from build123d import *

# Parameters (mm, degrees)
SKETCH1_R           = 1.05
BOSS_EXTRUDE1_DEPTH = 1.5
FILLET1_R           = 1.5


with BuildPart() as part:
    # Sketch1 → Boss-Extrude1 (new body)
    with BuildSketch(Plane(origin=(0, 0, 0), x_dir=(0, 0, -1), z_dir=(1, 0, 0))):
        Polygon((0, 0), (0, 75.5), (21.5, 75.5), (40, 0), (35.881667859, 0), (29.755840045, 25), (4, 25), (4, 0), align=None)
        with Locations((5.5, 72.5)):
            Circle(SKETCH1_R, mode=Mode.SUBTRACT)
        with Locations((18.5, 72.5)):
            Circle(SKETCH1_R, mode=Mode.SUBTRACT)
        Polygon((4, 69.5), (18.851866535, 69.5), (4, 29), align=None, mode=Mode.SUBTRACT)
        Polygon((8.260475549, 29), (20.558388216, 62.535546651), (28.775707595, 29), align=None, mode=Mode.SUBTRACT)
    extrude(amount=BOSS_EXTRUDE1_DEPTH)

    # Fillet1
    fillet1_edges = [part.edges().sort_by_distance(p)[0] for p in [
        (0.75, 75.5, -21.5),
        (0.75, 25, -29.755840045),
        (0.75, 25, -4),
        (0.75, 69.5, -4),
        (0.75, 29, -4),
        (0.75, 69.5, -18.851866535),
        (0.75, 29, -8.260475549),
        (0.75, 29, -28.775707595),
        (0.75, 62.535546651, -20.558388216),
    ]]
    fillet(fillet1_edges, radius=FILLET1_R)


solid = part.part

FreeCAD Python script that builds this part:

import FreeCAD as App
import Part
import Sketcher
Q = App.Units.Quantity


def edges_at(feature, points):
    """Names of the edges that pass closest to the given points."""
    edges = feature.Shape.Edges
    near = lambda p: min(range(len(edges)), key=lambda i: edges[i].distToShape(Part.Vertex(*p))[0])
    return sorted({f"Edge{near(p) + 1}" for p in points})

doc = App.newDocument("Part")
body = doc.addObject("PartDesign::Body", "Body")

sketch1 = doc.addObject("Sketcher::SketchObject", "Sketch")
body.addObject(sketch1)
sketch1.AttachmentSupport = (doc.YZ_Plane, [""])
sketch1.MapMode = "FlatFace"
sketch1.addGeometry([
    Part.LineSegment(App.Vector(75.5, 0, 0), App.Vector(0, 0, 0)),
    Part.LineSegment(App.Vector(0, 0, 0), App.Vector(0, -4, 0)),
    Part.LineSegment(App.Vector(0, -4, 0), App.Vector(25, -4, 0)),
    Part.LineSegment(App.Vector(25, -4, 0), App.Vector(25, -29.75584, 0)),
    Part.LineSegment(App.Vector(25, -29.75584, 0), App.Vector(0, -35.881668, 0)),
    Part.LineSegment(App.Vector(0, -35.881668, 0), App.Vector(0, -40, 0)),
    Part.LineSegment(App.Vector(0, -40, 0), App.Vector(75.5, -21.5, 0)),
    Part.LineSegment(App.Vector(75.5, -21.5, 0), App.Vector(75.5, 0, 0)),
    Part.LineSegment(App.Vector(29, -8.260476, 0), App.Vector(62.535547, -20.558388, 0)),
    Part.LineSegment(App.Vector(62.535547, -20.558388, 0), App.Vector(29, -28.775708, 0)),
    Part.LineSegment(App.Vector(29, -28.775708, 0), App.Vector(29, -8.260476, 0)),
    Part.LineSegment(App.Vector(69.5, -4, 0), App.Vector(69.5, -18.851867, 0)),
    Part.LineSegment(App.Vector(69.5, -18.851867, 0), App.Vector(29, -4, 0)),
    Part.LineSegment(App.Vector(29, -4, 0), App.Vector(69.5, -4, 0)),
    Part.Circle(App.Vector(72.5, -18.5, 0), App.Vector(0, 0, 1), 1.05),
    Part.Circle(App.Vector(72.5, -5.5, 0), App.Vector(0, 0, 1), 1.05),
], False)
sketch1.addConstraint([
    Sketcher.Constraint("Coincident", 0, 2, 1, 1),
    Sketcher.Constraint("Coincident", 1, 2, 2, 1),
    Sketcher.Constraint("Coincident", 2, 2, 3, 1),
    Sketcher.Constraint("Coincident", 3, 2, 4, 1),
    Sketcher.Constraint("Coincident", 4, 2, 5, 1),
    Sketcher.Constraint("Coincident", 5, 2, 6, 1),
    Sketcher.Constraint("Coincident", 6, 2, 7, 1),
    Sketcher.Constraint("Coincident", 7, 2, 0, 1),
    Sketcher.Constraint("Coincident", 8, 2, 9, 1),
    Sketcher.Constraint("Coincident", 9, 2, 10, 1),
    Sketcher.Constraint("Coincident", 10, 2, 8, 1),
    Sketcher.Constraint("Coincident", 11, 2, 12, 1),
    Sketcher.Constraint("Coincident", 12, 2, 13, 1),
    Sketcher.Constraint("Coincident", 13, 2, 11, 1),
    Sketcher.Constraint("Horizontal", 0),
    Sketcher.Constraint("Vertical", 1),
    Sketcher.Constraint("Horizontal", 2),
    Sketcher.Constraint("Vertical", 3),
    Sketcher.Constraint("Vertical", 5),
    Sketcher.Constraint("Vertical", 7),
    Sketcher.Constraint("Vertical", 10),
    Sketcher.Constraint("Vertical", 11),
    Sketcher.Constraint("Horizontal", 13),
    Sketcher.Constraint("Coincident", 0, 2, -1, 1),
    Sketcher.Constraint("Equal", 14, 15),
    Sketcher.Constraint("PointOnObject", 4, 2, -2),
    Sketcher.Constraint("Parallel", 4, 6),
    Sketcher.Constraint("Parallel", 6, 9),
    Sketcher.Constraint("Parallel", 8, 12),
    Sketcher.Constraint("Horizontal", 2, 2, 12, 2),
    Sketcher.Constraint("Vertical", 14, 3, 15, 3),
    Sketcher.Constraint("Vertical", 10, 2, 12, 2),
    Sketcher.Constraint("Diameter", 14, Q("2.1 mm")),
    Sketcher.Constraint("DistanceX", 2, 1, 2, 2, Q("25 mm")),
    Sketcher.Constraint("DistanceY", 1, 2, 1, 1, Q("4 mm")),
    Sketcher.Constraint("DistanceX", 0, 2, 0, 1, Q("75.5 mm")),
    Sketcher.Constraint("DistanceX", 13, 1, 13, 2, Q("40.5 mm")),
    Sketcher.Constraint("DistanceY", 7, 1, 7, 2, Q("21.5 mm")),
    Sketcher.Constraint("DistanceY", 5, 2, -1, 1, Q("40 mm")),
    Sketcher.Constraint("DistanceX", -1, 1, 9, 2, Q("29 mm")),
    Sketcher.Constraint("DistanceY", 14, 3, 15, 3, Q("13 mm")),
    Sketcher.Constraint("DistanceX", 14, 3, 6, 2, Q("3 mm")),
    Sketcher.Constraint("DistanceY", 6, 2, 14, 3, Q("3 mm")),
    Sketcher.Constraint("DistanceY", 3, 2, 3, 1, Q("25.75584 mm")),
    Sketcher.Constraint("Distance", 9, Q("34.52763 mm")),
    Sketcher.Constraint("DistanceY", 10, 1, 10, 2, Q("20.515232 mm")),
    Sketcher.Constraint("DistanceY", 8, 2, -1, 1, Q("20.558388 mm")),
])
pad1 = doc.addObject("PartDesign::Pad", "Pad")
body.addObject(pad1)
pad1.Profile = sketch1
pad1.Length = 1.5
doc.recompute()

fillet = doc.addObject("PartDesign::Fillet", "Fillet")
body.addObject(fillet)
fillet.Base = (pad1, edges_at(pad1, [
    (0.75, 75.5, -21.5),
    (0.75, 25, -29.756),
    (0.75, 25, -4),
    (0.75, 69.5, -4),
    (0.75, 29, -4),
    (0.75, 69.5, -18.852),
    (0.75, 29, -8.26),
    (0.75, 29, -28.776),
    (0.75, 62.536, -20.558),
]))
fillet.Radius = 1.5

doc.recompute()
